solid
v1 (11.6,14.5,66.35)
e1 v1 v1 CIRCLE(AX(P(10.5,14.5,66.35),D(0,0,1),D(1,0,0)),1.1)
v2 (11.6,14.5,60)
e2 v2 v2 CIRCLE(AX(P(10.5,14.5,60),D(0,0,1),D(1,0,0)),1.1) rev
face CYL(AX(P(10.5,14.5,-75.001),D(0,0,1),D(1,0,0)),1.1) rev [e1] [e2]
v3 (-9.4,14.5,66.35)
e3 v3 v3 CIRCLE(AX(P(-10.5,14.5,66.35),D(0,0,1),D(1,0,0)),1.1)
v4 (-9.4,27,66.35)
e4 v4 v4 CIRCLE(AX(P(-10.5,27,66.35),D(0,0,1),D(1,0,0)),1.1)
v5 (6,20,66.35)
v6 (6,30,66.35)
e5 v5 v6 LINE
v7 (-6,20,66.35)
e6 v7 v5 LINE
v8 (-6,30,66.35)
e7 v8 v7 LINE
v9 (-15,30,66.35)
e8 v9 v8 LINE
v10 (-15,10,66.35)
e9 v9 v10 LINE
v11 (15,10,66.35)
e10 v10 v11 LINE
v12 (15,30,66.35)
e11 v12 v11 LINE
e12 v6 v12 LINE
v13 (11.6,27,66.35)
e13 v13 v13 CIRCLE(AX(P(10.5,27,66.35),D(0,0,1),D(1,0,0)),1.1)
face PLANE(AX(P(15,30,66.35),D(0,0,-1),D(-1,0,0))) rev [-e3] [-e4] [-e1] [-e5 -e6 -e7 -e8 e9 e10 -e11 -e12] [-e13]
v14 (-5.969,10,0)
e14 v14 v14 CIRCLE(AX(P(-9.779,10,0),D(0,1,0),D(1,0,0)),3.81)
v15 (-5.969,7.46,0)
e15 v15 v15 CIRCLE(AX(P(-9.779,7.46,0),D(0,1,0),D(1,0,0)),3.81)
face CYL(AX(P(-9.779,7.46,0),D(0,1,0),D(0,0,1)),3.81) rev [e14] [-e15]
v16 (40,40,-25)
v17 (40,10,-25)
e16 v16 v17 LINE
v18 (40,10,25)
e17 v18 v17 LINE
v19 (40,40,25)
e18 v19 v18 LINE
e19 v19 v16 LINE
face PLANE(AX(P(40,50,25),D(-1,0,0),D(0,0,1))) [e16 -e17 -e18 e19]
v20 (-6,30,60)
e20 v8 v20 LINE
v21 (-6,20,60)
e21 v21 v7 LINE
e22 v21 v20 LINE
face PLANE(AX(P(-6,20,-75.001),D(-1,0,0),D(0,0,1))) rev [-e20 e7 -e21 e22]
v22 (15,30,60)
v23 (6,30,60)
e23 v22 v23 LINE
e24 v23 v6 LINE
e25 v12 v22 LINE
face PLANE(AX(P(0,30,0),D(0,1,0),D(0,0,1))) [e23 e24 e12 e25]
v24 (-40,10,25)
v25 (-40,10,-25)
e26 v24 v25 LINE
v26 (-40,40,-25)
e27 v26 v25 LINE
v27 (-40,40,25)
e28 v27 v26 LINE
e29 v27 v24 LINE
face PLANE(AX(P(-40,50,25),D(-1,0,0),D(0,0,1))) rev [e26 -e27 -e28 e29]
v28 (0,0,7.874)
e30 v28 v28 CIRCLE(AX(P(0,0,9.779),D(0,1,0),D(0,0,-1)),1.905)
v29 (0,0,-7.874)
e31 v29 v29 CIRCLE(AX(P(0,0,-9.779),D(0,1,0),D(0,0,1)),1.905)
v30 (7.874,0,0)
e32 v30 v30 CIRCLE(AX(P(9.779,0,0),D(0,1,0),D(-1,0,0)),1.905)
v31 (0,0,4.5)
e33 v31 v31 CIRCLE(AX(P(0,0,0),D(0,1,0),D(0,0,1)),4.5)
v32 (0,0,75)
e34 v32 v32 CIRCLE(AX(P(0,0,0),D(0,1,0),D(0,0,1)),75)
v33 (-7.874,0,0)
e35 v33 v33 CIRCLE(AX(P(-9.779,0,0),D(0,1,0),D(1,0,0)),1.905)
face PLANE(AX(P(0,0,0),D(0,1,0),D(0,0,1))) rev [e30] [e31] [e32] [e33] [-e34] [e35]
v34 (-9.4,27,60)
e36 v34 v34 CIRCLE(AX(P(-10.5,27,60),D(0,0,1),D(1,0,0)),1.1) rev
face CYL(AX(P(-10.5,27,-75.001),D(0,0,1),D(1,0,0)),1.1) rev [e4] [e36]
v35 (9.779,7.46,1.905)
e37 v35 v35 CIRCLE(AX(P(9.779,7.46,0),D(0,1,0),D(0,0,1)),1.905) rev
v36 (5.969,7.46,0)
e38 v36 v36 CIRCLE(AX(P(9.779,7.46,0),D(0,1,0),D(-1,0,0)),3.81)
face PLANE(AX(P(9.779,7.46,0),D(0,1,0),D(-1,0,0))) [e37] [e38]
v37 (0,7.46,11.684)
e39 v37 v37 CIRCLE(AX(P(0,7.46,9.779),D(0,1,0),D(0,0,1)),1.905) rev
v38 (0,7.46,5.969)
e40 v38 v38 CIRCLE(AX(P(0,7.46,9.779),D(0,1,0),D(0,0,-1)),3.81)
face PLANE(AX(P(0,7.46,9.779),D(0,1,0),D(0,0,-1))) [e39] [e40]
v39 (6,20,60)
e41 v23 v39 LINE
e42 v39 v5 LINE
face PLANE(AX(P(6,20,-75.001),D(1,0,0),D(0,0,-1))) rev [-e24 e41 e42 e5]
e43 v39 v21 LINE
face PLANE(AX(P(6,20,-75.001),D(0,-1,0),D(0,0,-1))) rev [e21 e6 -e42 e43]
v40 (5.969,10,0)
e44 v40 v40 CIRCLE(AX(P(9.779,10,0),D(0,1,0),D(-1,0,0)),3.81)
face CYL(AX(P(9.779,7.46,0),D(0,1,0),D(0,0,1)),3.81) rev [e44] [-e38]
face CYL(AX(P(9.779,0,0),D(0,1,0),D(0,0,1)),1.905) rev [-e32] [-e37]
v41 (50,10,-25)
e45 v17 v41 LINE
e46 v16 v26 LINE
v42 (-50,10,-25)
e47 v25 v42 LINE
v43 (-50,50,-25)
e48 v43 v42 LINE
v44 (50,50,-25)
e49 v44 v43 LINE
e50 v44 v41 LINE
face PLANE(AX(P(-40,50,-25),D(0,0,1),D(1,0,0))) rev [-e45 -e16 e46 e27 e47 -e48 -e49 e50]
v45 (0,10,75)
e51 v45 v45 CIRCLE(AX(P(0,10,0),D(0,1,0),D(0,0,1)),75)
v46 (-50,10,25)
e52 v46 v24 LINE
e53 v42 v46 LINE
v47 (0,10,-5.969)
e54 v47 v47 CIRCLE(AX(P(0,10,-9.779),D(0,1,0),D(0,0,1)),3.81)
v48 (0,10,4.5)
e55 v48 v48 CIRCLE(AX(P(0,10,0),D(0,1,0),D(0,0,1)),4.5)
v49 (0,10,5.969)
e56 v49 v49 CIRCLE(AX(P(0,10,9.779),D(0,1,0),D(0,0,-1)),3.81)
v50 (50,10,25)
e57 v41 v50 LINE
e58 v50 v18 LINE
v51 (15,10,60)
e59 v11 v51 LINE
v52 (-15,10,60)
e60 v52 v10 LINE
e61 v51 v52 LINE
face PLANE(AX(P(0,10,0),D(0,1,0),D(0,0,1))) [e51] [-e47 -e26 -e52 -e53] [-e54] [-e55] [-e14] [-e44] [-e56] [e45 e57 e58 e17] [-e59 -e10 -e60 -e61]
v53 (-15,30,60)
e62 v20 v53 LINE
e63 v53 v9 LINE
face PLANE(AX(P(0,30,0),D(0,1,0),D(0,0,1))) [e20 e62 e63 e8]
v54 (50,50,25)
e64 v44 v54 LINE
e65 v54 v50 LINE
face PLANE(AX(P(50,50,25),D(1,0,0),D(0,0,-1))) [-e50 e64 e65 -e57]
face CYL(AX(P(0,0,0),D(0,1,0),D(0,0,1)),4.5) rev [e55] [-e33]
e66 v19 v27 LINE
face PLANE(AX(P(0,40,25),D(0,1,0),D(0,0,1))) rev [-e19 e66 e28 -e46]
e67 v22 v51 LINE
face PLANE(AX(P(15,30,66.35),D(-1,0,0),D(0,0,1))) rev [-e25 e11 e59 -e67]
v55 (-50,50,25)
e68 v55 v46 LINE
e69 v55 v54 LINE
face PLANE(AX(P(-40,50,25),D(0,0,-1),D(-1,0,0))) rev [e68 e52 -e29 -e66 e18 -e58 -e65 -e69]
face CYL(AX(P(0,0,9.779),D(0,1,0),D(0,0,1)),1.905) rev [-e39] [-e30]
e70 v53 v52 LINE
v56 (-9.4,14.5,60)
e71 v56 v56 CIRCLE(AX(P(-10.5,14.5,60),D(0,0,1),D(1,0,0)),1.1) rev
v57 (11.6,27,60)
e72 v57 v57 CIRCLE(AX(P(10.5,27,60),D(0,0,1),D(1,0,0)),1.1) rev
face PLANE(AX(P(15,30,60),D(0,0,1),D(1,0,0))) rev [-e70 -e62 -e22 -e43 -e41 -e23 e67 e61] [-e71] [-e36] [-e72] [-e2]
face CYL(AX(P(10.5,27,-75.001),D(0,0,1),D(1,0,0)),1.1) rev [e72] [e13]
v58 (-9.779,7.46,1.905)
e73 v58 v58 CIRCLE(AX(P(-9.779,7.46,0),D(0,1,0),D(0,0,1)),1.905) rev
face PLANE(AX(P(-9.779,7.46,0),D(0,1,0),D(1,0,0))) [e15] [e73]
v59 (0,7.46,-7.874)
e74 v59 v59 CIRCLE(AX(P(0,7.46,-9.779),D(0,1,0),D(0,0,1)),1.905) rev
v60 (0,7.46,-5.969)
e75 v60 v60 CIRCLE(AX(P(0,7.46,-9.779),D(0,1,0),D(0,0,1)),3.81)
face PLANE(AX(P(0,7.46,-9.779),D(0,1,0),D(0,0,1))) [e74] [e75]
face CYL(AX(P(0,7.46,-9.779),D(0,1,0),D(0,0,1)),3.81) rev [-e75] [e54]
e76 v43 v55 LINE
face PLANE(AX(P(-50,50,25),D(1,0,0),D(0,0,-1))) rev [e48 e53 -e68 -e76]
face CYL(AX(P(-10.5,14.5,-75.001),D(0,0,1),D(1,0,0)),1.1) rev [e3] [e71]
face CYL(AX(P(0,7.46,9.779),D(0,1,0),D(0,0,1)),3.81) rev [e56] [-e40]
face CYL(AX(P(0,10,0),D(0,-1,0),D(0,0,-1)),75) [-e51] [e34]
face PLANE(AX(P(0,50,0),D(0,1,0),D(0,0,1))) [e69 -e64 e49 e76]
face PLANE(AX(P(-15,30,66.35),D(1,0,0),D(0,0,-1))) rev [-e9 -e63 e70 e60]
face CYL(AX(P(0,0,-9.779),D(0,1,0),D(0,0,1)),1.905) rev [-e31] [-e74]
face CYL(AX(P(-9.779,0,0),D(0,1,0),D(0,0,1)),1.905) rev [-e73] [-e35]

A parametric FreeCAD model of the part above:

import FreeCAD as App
import Part
import Sketcher
Q = App.Units.Quantity

doc = App.newDocument("Part")
params = doc.addObject("Spreadsheet::Sheet", "Params")
for row, (alias, value) in enumerate([
    ("sketch1_diameter", "150 mm"),
    ("pad1_length", "10 mm"),
    ("sketch2_diameter", "3.81 mm"),
    ("sketch3_diameter", "9 mm"),
    ("sketch4_diameter", "7.62 mm"),
    ("pocket3_length", "2.54 mm"),
    ("sketch5_width", "10 mm"),
    ("sketch5_height", "50 mm"),
    ("pad2_length", "40 mm"),
    ("sketch6_width", "10 mm"),
    ("sketch6_height", "50 mm"),
    ("pad3_length", "40 mm"),
    ("sketch7_width", "30 mm"),
    ("sketch7_height", "6.35 mm"),
    ("pad4_length", "20 mm"),
    ("sketch8_diameter", "2.2 mm"),
    ("sketch9_diameter", "2.2 mm"),
    ("sketch10_diameter", "2.2 mm"),
    ("sketch11_diameter", "2.2 mm"),
    ("sketch12_width", "12 mm"),
    ("sketch12_height", "20 mm"),
], start=1):
    params.set(f"A{row}", alias)
    params.set(f"B{row}", "=" + value)
    params.setAlias(f"B{row}", alias)

body = doc.addObject("PartDesign::Body", "Body")

# Sketch on XZ plane
sketch1 = doc.addObject("Sketcher::SketchObject", "Sketch")
body.addObject(sketch1)
sketch1.AttachmentSupport = (doc.XZ_Plane, [""])
sketch1.MapMode = "FlatFace"
sketch1.addGeometry(Part.Circle(App.Vector(0, 0, 0), App.Vector(0, 0, 1), 75), False)
sketch1.addConstraint(Sketcher.Constraint("Coincident", 0, 3, -1, 1))
sketch1.addConstraint(Sketcher.Constraint("Diameter", 0, Q("150 mm")))
sketch1.setExpression("Constraints[1]", "Params.sketch1_diameter")
pad1 = doc.addObject("PartDesign::Pad", "Pad")
body.addObject(pad1)
pad1.Profile = sketch1
pad1.setExpression("Length", "Params.pad1_length")
pad1.Reversed = True

# Sketch on XZ plane
sketch2 = doc.addObject("Sketcher::SketchObject", "Sketch001")
body.addObject(sketch2)
sketch2.AttachmentSupport = (doc.XZ_Plane, [""])
sketch2.MapMode = "FlatFace"
sketch2.AttachmentOffset = App.Placement(App.Vector(0, 0, -10), App.Rotation())
sketch2.addGeometry(Part.Circle(App.Vector(0, -9.8, 0), App.Vector(0, 0, 1), 1.9), False)
sketch2.addConstraint(Sketcher.Constraint("PointOnObject", 0, 3, -2))
sketch2.addConstraint(Sketcher.Constraint("Diameter", 0, Q("3.81 mm")))
sketch2.addConstraint(Sketcher.Constraint("DistanceY", 0, 3, -1, 1, Q("9.779 mm")))
sketch2.setExpression("Constraints[1]", "Params.sketch2_diameter")
pocket1 = doc.addObject("PartDesign::Pocket", "Pocket")
body.addObject(pocket1)
pocket1.Profile = sketch2
pocket1.Type = "ThroughAll"
pocket1.Reversed = True
doc.recompute()

polarpattern = doc.addObject("PartDesign::PolarPattern", "PolarPattern")
body.addObject(polarpattern)
polarpattern.Originals = [pocket1]
polarpattern.Axis = (doc.Y_Axis, [""])
polarpattern.Angle = 360
polarpattern.Occurrences = 4
body.Tip = polarpattern

# Sketch on XZ plane
sketch3 = doc.addObject("Sketcher::SketchObject", "Sketch002")
body.addObject(sketch3)
sketch3.AttachmentSupport = (doc.XZ_Plane, [""])
sketch3.MapMode = "FlatFace"
sketch3.AttachmentOffset = App.Placement(App.Vector(0, 0, -10), App.Rotation())
sketch3.addGeometry(Part.Circle(App.Vector(0, 0, 0), App.Vector(0, 0, 1), 4.5), False)
sketch3.addConstraint(Sketcher.Constraint("Coincident", 0, 3, -1, 1))
sketch3.addConstraint(Sketcher.Constraint("Diameter", 0, Q("9 mm")))
sketch3.setExpression("Constraints[1]", "Params.sketch3_diameter")
pocket2 = doc.addObject("PartDesign::Pocket", "Pocket001")
body.addObject(pocket2)
pocket2.Profile = sketch3
pocket2.Type = "ThroughAll"
pocket2.Reversed = True

# Sketch on XZ plane
sketch4 = doc.addObject("Sketcher::SketchObject", "Sketch003")
body.addObject(sketch4)
sketch4.AttachmentSupport = (doc.XZ_Plane, [""])
sketch4.MapMode = "FlatFace"
sketch4.AttachmentOffset = App.Placement(App.Vector(0, 0, -10), App.Rotation())
sketch4.addGeometry(Part.Circle(App.Vector(0, -9.8, 0), App.Vector(0, 0, 1), 3.8), False)
sketch4.addConstraint(Sketcher.Constraint("PointOnObject", 0, 3, -2))
sketch4.addConstraint(Sketcher.Constraint("Diameter", 0, Q("7.62 mm")))
sketch4.addConstraint(Sketcher.Constraint("DistanceY", 0, 3, -1, 1, Q("9.779 mm")))
sketch4.setExpression("Constraints[1]", "Params.sketch4_diameter")
pocket3 = doc.addObject("PartDesign::Pocket", "Pocket002")
body.addObject(pocket3)
pocket3.Profile = sketch4
pocket3.setExpression("Length", "Params.pocket3_length")
pocket3.Reversed = True
doc.recompute()

polarpattern2 = doc.addObject("PartDesign::PolarPattern", "PolarPattern001")
body.addObject(polarpattern2)
polarpattern2.Originals = [pocket3]
polarpattern2.Axis = (doc.Y_Axis, [""])
polarpattern2.Angle = 360
polarpattern2.Occurrences = 4
body.Tip = polarpattern2

# Sketch on XZ plane
sketch5 = doc.addObject("Sketcher::SketchObject", "Sketch004")
body.addObject(sketch5)
sketch5.AttachmentSupport = (doc.XZ_Plane, [""])
sketch5.MapMode = "FlatFace"
sketch5.AttachmentOffset = App.Placement(App.Vector(0, 0, -10), App.Rotation())
sketch5.addGeometry(Part.LineSegment(App.Vector(-50, -25, 0), App.Vector(-50, 25, 0)), False)
sketch5.addGeometry(Part.LineSegment(App.Vector(-50, 25, 0), App.Vector(-40, 25, 0)), False)
sketch5.addGeometry(Part.LineSegment(App.Vector(-40, 25, 0), App.Vector(-40, -25, 0)), False)
sketch5.addGeometry(Part.LineSegment(App.Vector(-40, -25, 0), App.Vector(-50, -25, 0)), False)
sketch5.addConstraint(Sketcher.Constraint("Coincident", 0, 2, 1, 1))
sketch5.addConstraint(Sketcher.Constraint("Coincident", 1, 2, 2, 1))
sketch5.addConstraint(Sketcher.Constraint("Coincident", 2, 2, 3, 1))
sketch5.addConstraint(Sketcher.Constraint("Coincident", 3, 2, 0, 1))
sketch5.addConstraint(Sketcher.Constraint("Vertical", 0))
sketch5.addConstraint(Sketcher.Constraint("Horizontal", 1))
sketch5.addConstraint(Sketcher.Constraint("Vertical", 2))
sketch5.addConstraint(Sketcher.Constraint("Horizontal", 3))
sketch5.addConstraint(Sketcher.Constraint("DistanceX", 1, 1, 1, 2, Q("10 mm")))
sketch5.addConstraint(Sketcher.Constraint("DistanceY", 0, 1, 0, 2, Q("50 mm")))
sketch5.addConstraint(Sketcher.Constraint("DistanceX", 0, 2, -1, 1, Q("50 mm")))
sketch5.addConstraint(Sketcher.Constraint("DistanceY", -1, 1, 0, 2, Q("25 mm")))
sketch5.setExpression("Constraints[8]", "Params.sketch5_width")
sketch5.setExpression("Constraints[9]", "Params.sketch5_height")
pad2 = doc.addObject("PartDesign::Pad", "Pad001")
body.addObject(pad2)
pad2.Profile = sketch5
pad2.setExpression("Length", "Params.pad2_length")
pad2.Reversed = True

# Sketch on YZ plane
sketch6 = doc.addObject("Sketcher::SketchObject", "Sketch005")
body.addObject(sketch6)
sketch6.AttachmentSupport = (doc.YZ_Plane, [""])
sketch6.MapMode = "FlatFace"
sketch6.AttachmentOffset = App.Placement(App.Vector(0, 0, -40), App.Rotation())
sketch6.addGeometry(Part.LineSegment(App.Vector(50, 25, 0), App.Vector(40, 25, 0)), False)
sketch6.addGeometry(Part.LineSegment(App.Vector(40, 25, 0), App.Vector(40, -25, 0)), False)
sketch6.addGeometry(Part.LineSegment(App.Vector(40, -25, 0), App.Vector(50, -25, 0)), False)
sketch6.addGeometry(Part.LineSegment(App.Vector(50, -25, 0), App.Vector(50, 25, 0)), False)
sketch6.addConstraint(Sketcher.Constraint("Coincident", 0, 2, 1, 1))
sketch6.addConstraint(Sketcher.Constraint("Coincident", 1, 2, 2, 1))
sketch6.addConstraint(Sketcher.Constraint("Coincident", 2, 2, 3, 1))
sketch6.addConstraint(Sketcher.Constraint("Coincident", 3, 2, 0, 1))
sketch6.addConstraint(Sketcher.Constraint("Horizontal", 0))
sketch6.addConstraint(Sketcher.Constraint("Vertical", 1))
sketch6.addConstraint(Sketcher.Constraint("Horizontal", 2))
sketch6.addConstraint(Sketcher.Constraint("Vertical", 3))
sketch6.addConstraint(Sketcher.Constraint("DistanceX", 0, 2, 0, 1, Q("10 mm")))
sketch6.addConstraint(Sketcher.Constraint("DistanceY", 1, 2, 1, 1, Q("50 mm")))
sketch6.addConstraint(Sketcher.Constraint("DistanceX", -1, 1, 0, 2, Q("40 mm")))
sketch6.addConstraint(Sketcher.Constraint("DistanceY", -1, 1, 0, 2, Q("25 mm")))
sketch6.setExpression("Constraints[8]", "Params.sketch6_width")
sketch6.setExpression("Constraints[9]", "Params.sketch6_height")
pad3 = doc.addObject("PartDesign::Pad", "Pad002")
body.addObject(pad3)
pad3.Profile = sketch6
pad3.setExpression("Length", "Params.pad3_length")
doc.recompute()

mirrored = doc.addObject("PartDesign::Mirrored", "Mirrored")
body.addObject(mirrored)
mirrored.Originals = [pad2, pad3]
mirrored.MirrorPlane = (doc.YZ_Plane, [""])
body.Tip = mirrored

# Sketch on XZ plane
sketch7 = doc.addObject("Sketcher::SketchObject", "Sketch006")
body.addObject(sketch7)
sketch7.AttachmentSupport = (doc.XZ_Plane, [""])
sketch7.MapMode = "FlatFace"
sketch7.AttachmentOffset = App.Placement(App.Vector(0, 0, -10), App.Rotation())
sketch7.addGeometry(Part.LineSegment(App.Vector(-15, 60, 0), App.Vector(-15, 66, 0)), False)
sketch7.addGeometry(Part.LineSegment(App.Vector(-15, 66, 0), App.Vector(15, 66, 0)), False)
sketch7.addGeometry(Part.LineSegment(App.Vector(15, 66, 0), App.Vector(15, 60, 0)), False)
sketch7.addGeometry(Part.LineSegment(App.Vector(15, 60, 0), App.Vector(-15, 60, 0)), False)
sketch7.addConstraint(Sketcher.Constraint("Coincident", 0, 2, 1, 1))
sketch7.addConstraint(Sketcher.Constraint("Coincident", 1, 2, 2, 1))
sketch7.addConstraint(Sketcher.Constraint("Coincident", 2, 2, 3, 1))
sketch7.addConstraint(Sketcher.Constraint("Coincident", 3, 2, 0, 1))
sketch7.addConstraint(Sketcher.Constraint("Vertical", 0))
sketch7.addConstraint(Sketcher.Constraint("Horizontal", 1))
sketch7.addConstraint(Sketcher.Constraint("Vertical", 2))
sketch7.addConstraint(Sketcher.Constraint("Horizontal", 3))
sketch7.addConstraint(Sketcher.Constraint("DistanceX", 1, 1, 1, 2, Q("30 mm")))
sketch7.addConstraint(Sketcher.Constraint("DistanceX", 0, 2, -1, 1, Q("15 mm")))
sketch7.addConstraint(Sketcher.Constraint("DistanceY", -1, 1, 2, 2, Q("60 mm")))
sketch7.addConstraint(Sketcher.Constraint("DistanceY", 0, 1, 0, 2, Q("6.35 mm")))
sketch7.setExpression("Constraints[8]", "Params.sketch7_width")
sketch7.setExpression("Constraints[11]", "Params.sketch7_height")
pad4 = doc.addObject("PartDesign::Pad", "Pad003")
body.addObject(pad4)
pad4.Profile = sketch7
pad4.setExpression("Length", "Params.pad4_length")
pad4.Reversed = True

# Sketch on XY plane
sketch8 = doc.addObject("Sketcher::SketchObject", "Sketch007")
body.addObject(sketch8)
sketch8.AttachmentSupport = (doc.XY_Plane, [""])
sketch8.MapMode = "FlatFace"
sketch8.AttachmentOffset = App.Placement(App.Vector(0, 0, 66.35), App.Rotation())
sketch8.addGeometry(Part.Circle(App.Vector(-10.5, 27, 0), App.Vector(0, 0, 1), 1.1), False)
sketch8.addConstraint(Sketcher.Constraint("Diameter", 0, Q("2.2 mm")))
sketch8.addConstraint(Sketcher.Constraint("DistanceY", -1, 1, 0, 3, Q("27 mm")))
sketch8.addConstraint(Sketcher.Constraint("DistanceX", 0, 3, -1, 1, Q("10.5 mm")))
sketch8.setExpression("Constraints[0]", "Params.sketch8_diameter")
pocket4 = doc.addObject("PartDesign::Pocket", "Pocket003")
body.addObject(pocket4)
pocket4.Profile = sketch8
pocket4.Type = "UpToFirst"

# Sketch on XY plane
sketch9 = doc.addObject("Sketcher::SketchObject", "Sketch008")
body.addObject(sketch9)
sketch9.AttachmentSupport = (doc.XY_Plane, [""])
sketch9.MapMode = "FlatFace"
sketch9.AttachmentOffset = App.Placement(App.Vector(0, 0, 66.35), App.Rotation())
sketch9.addGeometry(Part.Circle(App.Vector(-10.5, 14.5, 0), App.Vector(0, 0, 1), 1.1), False)
sketch9.addConstraint(Sketcher.Constraint("Diameter", 0, Q("2.2 mm")))
sketch9.addConstraint(Sketcher.Constraint("DistanceX", 0, 3, -1, 1, Q("10.5 mm")))
sketch9.addConstraint(Sketcher.Constraint("DistanceY", -1, 1, 0, 3, Q("14.5 mm")))
sketch9.setExpression("Constraints[0]", "Params.sketch9_diameter")
pocket5 = doc.addObject("PartDesign::Pocket", "Pocket004")
body.addObject(pocket5)
pocket5.Profile = sketch9
pocket5.Type = "UpToFirst"

# Sketch on XY plane
sketch10 = doc.addObject("Sketcher::SketchObject", "Sketch009")
body.addObject(sketch10)
sketch10.AttachmentSupport = (doc.XY_Plane, [""])
sketch10.MapMode = "FlatFace"
sketch10.AttachmentOffset = App.Placement(App.Vector(0, 0, 66.35), App.Rotation())
sketch10.addGeometry(Part.Circle(App.Vector(10.5, 27, 0), App.Vector(0, 0, 1), 1.1), False)
sketch10.addConstraint(Sketcher.Constraint("Diameter", 0, Q("2.2 mm")))
sketch10.addConstraint(Sketcher.Constraint("DistanceY", -1, 1, 0, 3, Q("27 mm")))
sketch10.addConstraint(Sketcher.Constraint("DistanceX", -1, 1, 0, 3, Q("10.5 mm")))
sketch10.setExpression("Constraints[0]", "Params.sketch10_diameter")
pocket6 = doc.addObject("PartDesign::Pocket", "Pocket005")
body.addObject(pocket6)
pocket6.Profile = sketch10
pocket6.Type = "UpToFirst"

# Sketch on XY plane
sketch11 = doc.addObject("Sketcher::SketchObject", "Sketch010")
body.addObject(sketch11)
sketch11.AttachmentSupport = (doc.XY_Plane, [""])
sketch11.MapMode = "FlatFace"
sketch11.AttachmentOffset = App.Placement(App.Vector(0, 0, 66.35), App.Rotation())
sketch11.addGeometry(Part.Circle(App.Vector(10.5, 14.5, 0), App.Vector(0, 0, 1), 1.1), False)
sketch11.addConstraint(Sketcher.Constraint("Diameter", 0, Q("2.2 mm")))
sketch11.addConstraint(Sketcher.Constraint("DistanceX", -1, 1, 0, 3, Q("10.5 mm")))
sketch11.addConstraint(Sketcher.Constraint("DistanceY", -1, 1, 0, 3, Q("14.5 mm")))
sketch11.setExpression("Constraints[0]", "Params.sketch11_diameter")
pocket7 = doc.addObject("PartDesign::Pocket", "Pocket006")
body.addObject(pocket7)
pocket7.Profile = sketch11
pocket7.Type = "UpToFirst"

# Sketch on XY plane
sketch12 = doc.addObject("Sketcher::SketchObject", "Sketch011")
body.addObject(sketch12)
sketch12.AttachmentSupport = (doc.XY_Plane, [""])
sketch12.MapMode = "FlatFace"
sketch12.AttachmentOffset = App.Placement(App.Vector(0, 0, 66.35), App.Rotation())
sketch12.addGeometry(Part.LineSegment(App.Vector(-6, 40, 0), App.Vector(-6, 20, 0)), False)
sketch12.addGeometry(Part.LineSegment(App.Vector(-6, 20, 0), App.Vector(6, 20, 0)), False)
sketch12.addGeometry(Part.LineSegment(App.Vector(6, 20, 0), App.Vector(6, 40, 0)), False)
sketch12.addGeometry(Part.LineSegment(App.Vector(6, 40, 0), App.Vector(-6, 40, 0)), False)
sketch12.addConstraint(Sketcher.Constraint("Coincident", 0, 2, 1, 1))
sketch12.addConstraint(Sketcher.Constraint("Coincident", 1, 2, 2, 1))
sketch12.addConstraint(Sketcher.Constraint("Coincident", 2, 2, 3, 1))
sketch12.addConstraint(Sketcher.Constraint("Coincident", 3, 2, 0, 1))
sketch12.addConstraint(Sketcher.Constraint("Vertical", 0))
sketch12.addConstraint(Sketcher.Constraint("Horizontal", 1))
sketch12.addConstraint(Sketcher.Constraint("Vertical", 2))
sketch12.addConstraint(Sketcher.Constraint("Horizontal", 3))
sketch12.addConstraint(Sketcher.Constraint("DistanceX", 1, 1, 1, 2, Q("12 mm")))
sketch12.addConstraint(Sketcher.Constraint("DistanceY", 0, 2, 0, 1, Q("20 mm")))
sketch12.addConstraint(Sketcher.Constraint("DistanceX", 0, 2, -1, 1, Q("6 mm")))
sketch12.addConstraint(Sketcher.Constraint("DistanceY", -1, 1, 0, 2, Q("20 mm")))
sketch12.setExpression("Constraints[8]", "Params.sketch12_width")
sketch12.setExpression("Constraints[9]", "Params.sketch12_height")
pocket8 = doc.addObject("PartDesign::Pocket", "Pocket007")
body.addObject(pocket8)
pocket8.Profile = sketch12
pocket8.Type = "UpToFirst"

doc.recompute()
